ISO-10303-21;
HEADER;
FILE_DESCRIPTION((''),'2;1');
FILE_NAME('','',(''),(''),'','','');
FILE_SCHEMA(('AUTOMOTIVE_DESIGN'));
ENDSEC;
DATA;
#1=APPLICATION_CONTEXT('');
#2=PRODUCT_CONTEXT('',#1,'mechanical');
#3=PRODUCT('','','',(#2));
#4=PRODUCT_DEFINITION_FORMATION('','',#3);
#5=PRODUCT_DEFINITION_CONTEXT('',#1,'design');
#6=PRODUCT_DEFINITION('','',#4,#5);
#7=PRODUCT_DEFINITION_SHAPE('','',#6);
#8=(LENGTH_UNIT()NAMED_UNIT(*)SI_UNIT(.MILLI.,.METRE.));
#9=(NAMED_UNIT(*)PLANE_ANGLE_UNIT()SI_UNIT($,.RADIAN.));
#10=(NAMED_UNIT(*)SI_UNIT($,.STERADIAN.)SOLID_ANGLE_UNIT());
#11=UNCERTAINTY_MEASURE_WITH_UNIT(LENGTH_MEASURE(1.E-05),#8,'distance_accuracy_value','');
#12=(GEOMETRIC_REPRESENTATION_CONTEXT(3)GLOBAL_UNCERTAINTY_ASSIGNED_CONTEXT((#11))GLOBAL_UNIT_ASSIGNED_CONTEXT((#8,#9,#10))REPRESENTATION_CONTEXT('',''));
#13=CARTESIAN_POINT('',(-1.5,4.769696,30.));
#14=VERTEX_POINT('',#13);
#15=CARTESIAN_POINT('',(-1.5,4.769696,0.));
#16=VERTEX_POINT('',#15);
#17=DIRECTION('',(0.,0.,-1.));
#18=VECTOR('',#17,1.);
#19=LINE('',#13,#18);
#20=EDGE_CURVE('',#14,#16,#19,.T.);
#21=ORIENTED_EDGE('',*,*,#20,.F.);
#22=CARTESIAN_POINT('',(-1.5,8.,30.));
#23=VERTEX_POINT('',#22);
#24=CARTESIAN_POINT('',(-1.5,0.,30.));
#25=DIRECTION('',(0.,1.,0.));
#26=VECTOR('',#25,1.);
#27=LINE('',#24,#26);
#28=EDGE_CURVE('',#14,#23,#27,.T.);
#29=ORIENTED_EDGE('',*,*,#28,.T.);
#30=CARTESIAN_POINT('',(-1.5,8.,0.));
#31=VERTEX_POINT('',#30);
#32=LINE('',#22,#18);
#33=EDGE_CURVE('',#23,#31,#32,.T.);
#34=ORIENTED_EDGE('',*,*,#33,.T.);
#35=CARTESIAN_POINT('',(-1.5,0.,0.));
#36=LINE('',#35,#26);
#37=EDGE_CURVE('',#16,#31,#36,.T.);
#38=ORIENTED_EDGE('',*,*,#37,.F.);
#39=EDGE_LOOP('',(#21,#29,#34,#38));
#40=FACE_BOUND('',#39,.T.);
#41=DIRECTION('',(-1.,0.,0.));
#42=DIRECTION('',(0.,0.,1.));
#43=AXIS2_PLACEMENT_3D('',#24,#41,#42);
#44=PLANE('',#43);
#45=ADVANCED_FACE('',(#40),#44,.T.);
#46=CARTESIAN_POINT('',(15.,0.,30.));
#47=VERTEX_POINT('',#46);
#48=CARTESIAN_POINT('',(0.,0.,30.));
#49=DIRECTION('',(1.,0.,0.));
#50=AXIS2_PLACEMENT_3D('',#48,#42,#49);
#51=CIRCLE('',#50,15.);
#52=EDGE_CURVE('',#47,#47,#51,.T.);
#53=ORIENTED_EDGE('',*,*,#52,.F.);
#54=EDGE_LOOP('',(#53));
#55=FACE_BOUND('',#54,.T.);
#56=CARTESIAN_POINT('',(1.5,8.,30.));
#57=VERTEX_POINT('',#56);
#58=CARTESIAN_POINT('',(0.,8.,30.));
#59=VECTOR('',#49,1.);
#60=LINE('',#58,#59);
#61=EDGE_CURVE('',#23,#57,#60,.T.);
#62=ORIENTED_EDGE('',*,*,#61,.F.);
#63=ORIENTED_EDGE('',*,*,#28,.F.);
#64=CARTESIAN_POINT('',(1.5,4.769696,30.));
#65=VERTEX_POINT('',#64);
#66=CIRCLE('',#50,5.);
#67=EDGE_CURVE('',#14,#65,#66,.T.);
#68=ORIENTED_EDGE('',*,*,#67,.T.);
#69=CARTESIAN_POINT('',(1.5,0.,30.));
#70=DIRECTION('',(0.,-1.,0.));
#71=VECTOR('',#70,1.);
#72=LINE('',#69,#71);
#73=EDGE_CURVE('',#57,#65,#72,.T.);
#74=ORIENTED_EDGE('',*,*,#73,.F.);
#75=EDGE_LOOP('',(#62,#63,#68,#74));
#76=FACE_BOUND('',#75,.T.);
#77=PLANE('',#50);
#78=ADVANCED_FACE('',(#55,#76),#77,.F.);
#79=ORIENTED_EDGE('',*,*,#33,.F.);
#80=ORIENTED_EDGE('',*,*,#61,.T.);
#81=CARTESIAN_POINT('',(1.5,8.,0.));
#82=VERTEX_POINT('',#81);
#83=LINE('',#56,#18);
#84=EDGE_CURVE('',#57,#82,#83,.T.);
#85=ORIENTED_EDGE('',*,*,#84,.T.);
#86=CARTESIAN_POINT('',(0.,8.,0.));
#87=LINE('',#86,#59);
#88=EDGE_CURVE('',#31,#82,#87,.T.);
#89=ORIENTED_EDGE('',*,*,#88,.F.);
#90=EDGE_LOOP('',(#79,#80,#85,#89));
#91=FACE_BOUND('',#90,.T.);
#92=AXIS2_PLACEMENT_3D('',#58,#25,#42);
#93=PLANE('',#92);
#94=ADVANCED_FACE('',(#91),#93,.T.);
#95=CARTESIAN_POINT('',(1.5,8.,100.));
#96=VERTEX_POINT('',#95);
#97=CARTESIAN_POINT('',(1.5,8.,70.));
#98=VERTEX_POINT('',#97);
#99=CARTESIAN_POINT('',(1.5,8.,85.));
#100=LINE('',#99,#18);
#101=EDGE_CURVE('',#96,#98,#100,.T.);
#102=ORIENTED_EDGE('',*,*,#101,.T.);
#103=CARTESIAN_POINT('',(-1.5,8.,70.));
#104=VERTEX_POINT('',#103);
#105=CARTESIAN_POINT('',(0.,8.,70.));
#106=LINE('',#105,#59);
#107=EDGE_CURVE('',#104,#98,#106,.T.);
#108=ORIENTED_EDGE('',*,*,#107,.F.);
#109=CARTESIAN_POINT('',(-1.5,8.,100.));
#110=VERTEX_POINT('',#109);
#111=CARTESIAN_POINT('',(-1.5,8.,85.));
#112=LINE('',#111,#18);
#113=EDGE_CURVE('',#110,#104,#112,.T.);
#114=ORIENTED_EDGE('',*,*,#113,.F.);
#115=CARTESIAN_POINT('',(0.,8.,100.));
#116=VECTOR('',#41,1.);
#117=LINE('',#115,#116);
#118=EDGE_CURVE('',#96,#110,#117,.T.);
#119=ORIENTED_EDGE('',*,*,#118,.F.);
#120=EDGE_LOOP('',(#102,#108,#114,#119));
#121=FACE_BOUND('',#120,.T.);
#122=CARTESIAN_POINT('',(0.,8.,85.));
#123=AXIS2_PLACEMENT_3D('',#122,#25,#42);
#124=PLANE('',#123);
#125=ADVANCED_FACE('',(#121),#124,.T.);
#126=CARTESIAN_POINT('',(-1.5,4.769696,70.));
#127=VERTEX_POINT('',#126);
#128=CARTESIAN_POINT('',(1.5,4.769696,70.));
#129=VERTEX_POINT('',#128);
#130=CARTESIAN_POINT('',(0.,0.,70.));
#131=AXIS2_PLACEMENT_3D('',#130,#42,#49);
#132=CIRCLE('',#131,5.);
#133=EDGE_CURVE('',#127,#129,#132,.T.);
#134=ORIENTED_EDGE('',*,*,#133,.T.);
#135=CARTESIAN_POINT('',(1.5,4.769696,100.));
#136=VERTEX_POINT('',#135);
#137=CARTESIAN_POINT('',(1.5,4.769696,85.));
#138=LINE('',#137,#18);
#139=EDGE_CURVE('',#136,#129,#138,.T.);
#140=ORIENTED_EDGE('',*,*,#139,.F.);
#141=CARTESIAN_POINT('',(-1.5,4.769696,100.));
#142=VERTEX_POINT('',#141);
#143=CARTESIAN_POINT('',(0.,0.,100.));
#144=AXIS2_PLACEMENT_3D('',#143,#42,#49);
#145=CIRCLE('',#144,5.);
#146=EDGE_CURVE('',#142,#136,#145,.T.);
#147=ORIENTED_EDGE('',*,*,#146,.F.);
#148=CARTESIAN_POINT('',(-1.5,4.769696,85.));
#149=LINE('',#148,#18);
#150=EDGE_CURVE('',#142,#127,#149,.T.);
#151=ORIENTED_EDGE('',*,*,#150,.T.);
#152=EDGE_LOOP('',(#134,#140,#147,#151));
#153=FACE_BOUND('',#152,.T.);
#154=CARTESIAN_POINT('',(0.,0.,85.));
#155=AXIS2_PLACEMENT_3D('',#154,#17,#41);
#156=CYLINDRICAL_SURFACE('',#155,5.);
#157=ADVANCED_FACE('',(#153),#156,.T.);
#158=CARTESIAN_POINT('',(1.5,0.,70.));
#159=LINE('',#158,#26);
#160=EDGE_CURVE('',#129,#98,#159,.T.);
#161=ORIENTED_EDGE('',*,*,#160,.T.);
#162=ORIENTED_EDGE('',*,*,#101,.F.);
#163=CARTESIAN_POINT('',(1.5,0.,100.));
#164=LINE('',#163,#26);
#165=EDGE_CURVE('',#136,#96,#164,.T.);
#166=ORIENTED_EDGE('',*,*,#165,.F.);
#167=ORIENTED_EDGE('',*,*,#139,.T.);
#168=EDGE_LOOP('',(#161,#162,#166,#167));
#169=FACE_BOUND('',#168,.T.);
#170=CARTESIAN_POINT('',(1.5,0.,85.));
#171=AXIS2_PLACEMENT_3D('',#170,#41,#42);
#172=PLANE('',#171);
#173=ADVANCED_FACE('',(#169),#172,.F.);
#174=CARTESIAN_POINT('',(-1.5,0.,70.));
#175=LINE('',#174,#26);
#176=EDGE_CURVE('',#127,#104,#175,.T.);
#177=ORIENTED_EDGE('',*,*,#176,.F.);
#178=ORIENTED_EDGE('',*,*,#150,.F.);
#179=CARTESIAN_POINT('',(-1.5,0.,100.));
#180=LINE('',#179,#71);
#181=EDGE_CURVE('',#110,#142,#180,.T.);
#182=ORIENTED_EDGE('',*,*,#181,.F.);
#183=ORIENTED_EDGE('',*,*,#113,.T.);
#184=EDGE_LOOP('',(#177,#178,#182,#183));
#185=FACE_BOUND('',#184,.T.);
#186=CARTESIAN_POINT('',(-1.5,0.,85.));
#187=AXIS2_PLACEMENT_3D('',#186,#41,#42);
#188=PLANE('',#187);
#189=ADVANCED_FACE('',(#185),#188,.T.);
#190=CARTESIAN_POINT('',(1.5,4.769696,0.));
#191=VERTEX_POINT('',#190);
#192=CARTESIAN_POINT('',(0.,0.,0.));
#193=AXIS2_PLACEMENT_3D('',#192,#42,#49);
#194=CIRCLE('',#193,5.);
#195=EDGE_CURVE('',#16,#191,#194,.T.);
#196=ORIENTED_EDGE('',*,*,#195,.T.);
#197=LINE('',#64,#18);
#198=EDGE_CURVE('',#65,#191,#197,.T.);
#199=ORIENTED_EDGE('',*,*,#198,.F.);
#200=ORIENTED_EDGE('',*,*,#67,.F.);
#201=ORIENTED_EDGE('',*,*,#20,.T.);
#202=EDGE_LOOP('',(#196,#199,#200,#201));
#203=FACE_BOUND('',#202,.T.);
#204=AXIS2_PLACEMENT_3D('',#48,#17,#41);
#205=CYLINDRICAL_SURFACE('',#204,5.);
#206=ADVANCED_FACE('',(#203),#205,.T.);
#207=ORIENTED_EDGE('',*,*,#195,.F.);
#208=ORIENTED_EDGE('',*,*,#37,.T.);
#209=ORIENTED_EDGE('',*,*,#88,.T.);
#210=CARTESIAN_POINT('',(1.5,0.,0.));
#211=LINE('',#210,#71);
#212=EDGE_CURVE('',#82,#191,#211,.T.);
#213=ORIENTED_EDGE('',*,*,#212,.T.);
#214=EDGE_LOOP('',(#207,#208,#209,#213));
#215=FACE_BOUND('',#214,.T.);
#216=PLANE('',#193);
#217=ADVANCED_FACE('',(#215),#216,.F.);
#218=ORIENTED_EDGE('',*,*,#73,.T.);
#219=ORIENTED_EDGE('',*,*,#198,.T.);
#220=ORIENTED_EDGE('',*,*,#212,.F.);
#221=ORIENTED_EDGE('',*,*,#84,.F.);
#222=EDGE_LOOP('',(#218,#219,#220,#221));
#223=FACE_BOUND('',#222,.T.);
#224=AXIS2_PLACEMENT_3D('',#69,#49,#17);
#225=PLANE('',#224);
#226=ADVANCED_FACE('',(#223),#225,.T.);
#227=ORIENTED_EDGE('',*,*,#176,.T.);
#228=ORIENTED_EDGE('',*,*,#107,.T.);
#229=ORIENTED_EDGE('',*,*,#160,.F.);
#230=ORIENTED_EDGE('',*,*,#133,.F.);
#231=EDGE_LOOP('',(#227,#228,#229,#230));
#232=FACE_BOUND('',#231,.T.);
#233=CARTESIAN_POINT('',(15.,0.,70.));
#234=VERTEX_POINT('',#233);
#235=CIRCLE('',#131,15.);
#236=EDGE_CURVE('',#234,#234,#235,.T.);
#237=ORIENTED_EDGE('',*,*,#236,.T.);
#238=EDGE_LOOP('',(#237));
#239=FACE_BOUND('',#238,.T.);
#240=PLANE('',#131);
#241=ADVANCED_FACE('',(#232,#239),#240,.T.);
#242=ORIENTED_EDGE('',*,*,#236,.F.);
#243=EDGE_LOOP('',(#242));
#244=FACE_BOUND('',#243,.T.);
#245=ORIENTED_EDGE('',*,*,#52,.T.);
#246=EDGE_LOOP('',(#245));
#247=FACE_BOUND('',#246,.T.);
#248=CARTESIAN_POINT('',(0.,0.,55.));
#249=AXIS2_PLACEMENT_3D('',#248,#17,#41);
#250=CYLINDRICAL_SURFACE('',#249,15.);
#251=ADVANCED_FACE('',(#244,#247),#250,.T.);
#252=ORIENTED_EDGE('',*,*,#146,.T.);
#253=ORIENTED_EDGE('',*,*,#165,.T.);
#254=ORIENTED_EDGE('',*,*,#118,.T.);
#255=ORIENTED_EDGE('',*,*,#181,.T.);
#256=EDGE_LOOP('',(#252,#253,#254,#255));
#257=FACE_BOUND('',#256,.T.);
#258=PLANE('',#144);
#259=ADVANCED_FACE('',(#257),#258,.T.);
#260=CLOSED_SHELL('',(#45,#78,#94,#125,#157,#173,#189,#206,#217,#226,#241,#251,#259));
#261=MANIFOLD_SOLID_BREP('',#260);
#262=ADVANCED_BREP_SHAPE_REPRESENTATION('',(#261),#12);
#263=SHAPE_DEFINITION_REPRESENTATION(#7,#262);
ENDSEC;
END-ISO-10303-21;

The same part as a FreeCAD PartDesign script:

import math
import FreeCAD as App
import Part
import Sketcher

V = App.Vector

doc = App.newDocument("Part")
body = doc.addObject("PartDesign::Body", "Body")

sketch1 = doc.addObject("Sketcher::SketchObject", "Sketch")
body.addObject(sketch1)
sketch1.AttachmentSupport = (doc.XY_Plane, [""])
sketch1.MapMode = "FlatFace"
sketch1.addGeometry(Part.LineSegment(V(1.5, 4.8, 0), V(1.5, 8, 0)), False)
sketch1.addGeometry(Part.LineSegment(V(1.5, 8, 0), V(-1.5, 8, 0)), False)
sketch1.addGeometry(Part.LineSegment(V(-1.5, 8, 0), V(-1.5, 4.8, 0)), False)
sketch1.addGeometry(Part.ArcOfCircle(Part.Circle(V(0, 0, 0), V(0, 0, 1), 5), math.radians(107), math.radians(360)), False)
sketch1.addGeometry(Part.ArcOfCircle(Part.Circle(V(0, 0, 0), V(0, 0, 1), 5), math.radians(0), math.radians(73)), False)
sketch1.addConstraint(Sketcher.Constraint("Coincident", 0, 2, 1, 1))
sketch1.addConstraint(Sketcher.Constraint("Coincident", 1, 2, 2, 1))
sketch1.addConstraint(Sketcher.Constraint("Coincident", 2, 2, 3, 1))
sketch1.addConstraint(Sketcher.Constraint("Tangent", 3, 2, 4, 1))
sketch1.addConstraint(Sketcher.Constraint("Coincident", 4, 2, 0, 1))
sketch1.addConstraint(Sketcher.Constraint("Vertical", 0))
sketch1.addConstraint(Sketcher.Constraint("Horizontal", 1))
sketch1.addConstraint(Sketcher.Constraint("Vertical", 2))
sketch1.addConstraint(Sketcher.Constraint("Coincident", 3, 3, -1, 1))
sketch1.addConstraint(Sketcher.Constraint("Equal", 3, 4))
sketch1.addConstraint(Sketcher.Constraint("PointOnObject", 3, 2, -1))
sketch1.addConstraint(Sketcher.Constraint("Horizontal", 2, 2, 4, 2))
sketch1.addConstraint(Sketcher.Constraint("Radius", 3, 5.0))
sketch1.addConstraint(Sketcher.Constraint("DistanceX", 1, 2, 1, 1, 3.0))
sketch1.addConstraint(Sketcher.Constraint("DistanceY", -1, 1, 0, 2, 8.0))
pad1 = doc.addObject("PartDesign::Pad", "Pad")
body.addObject(pad1)
pad1.Profile = sketch1
pad1.Length = 30

sketch2 = doc.addObject("Sketcher::SketchObject", "Sketch001")
body.addObject(sketch2)
sketch2.AttachmentSupport = (doc.XY_Plane, [""])
sketch2.MapMode = "FlatFace"
sketch2.AttachmentOffset = App.Placement(V(0, 0, 30), App.Rotation())
sketch2.addGeometry(Part.Circle(V(0, 0, 0), V(0, 0, 1), 15), False)
sketch2.addConstraint(Sketcher.Constraint("Coincident", 0, 3, -1, 1))
sketch2.addConstraint(Sketcher.Constraint("Diameter", 0, 30.0))
pad2 = doc.addObject("PartDesign::Pad", "Pad001")
body.addObject(pad2)
pad2.Profile = sketch2
pad2.Length = 25

sketch3 = doc.addObject("Sketcher::SketchObject", "Sketch002")
body.addObject(sketch3)
sketch3.AttachmentSupport = (doc.XY_Plane, [""])
sketch3.MapMode = "FlatFace"
sketch3.AttachmentOffset = App.Placement(V(0, 0, 55), App.Rotation())
sketch3.addGeometry(Part.ArcOfCircle(Part.Circle(V(0, 0, 0), V(0, 0, 1), 5), math.radians(107), math.radians(360)), False)
sketch3.addGeometry(Part.ArcOfCircle(Part.Circle(V(0, 0, 0), V(0, 0, 1), 5), math.radians(0), math.radians(73)), False)
sketch3.addGeometry(Part.LineSegment(V(1.5, 4.8, 0), V(1.5, 8, 0)), False)
sketch3.addGeometry(Part.LineSegment(V(1.5, 8, 0), V(-1.5, 8, 0)), False)
sketch3.addGeometry(Part.LineSegment(V(-1.5, 8, 0), V(-1.5, 4.8, 0)), False)
sketch3.addConstraint(Sketcher.Constraint("Tangent", 0, 2, 1, 1))
sketch3.addConstraint(Sketcher.Constraint("Coincident", 1, 2, 2, 1))
sketch3.addConstraint(Sketcher.Constraint("Coincident", 2, 2, 3, 1))
sketch3.addConstraint(Sketcher.Constraint("Coincident", 3, 2, 4, 1))
sketch3.addConstraint(Sketcher.Constraint("Coincident", 4, 2, 0, 1))
sketch3.addConstraint(Sketcher.Constraint("Vertical", 2))
sketch3.addConstraint(Sketcher.Constraint("Horizontal", 3))
sketch3.addConstraint(Sketcher.Constraint("Vertical", 4))
sketch3.addConstraint(Sketcher.Constraint("Coincident", 0, 3, -1, 1))
sketch3.addConstraint(Sketcher.Constraint("Equal", 0, 1))
sketch3.addConstraint(Sketcher.Constraint("PointOnObject", 0, 2, -1))
sketch3.addConstraint(Sketcher.Constraint("Horizontal", 1, 2, 4, 2))
sketch3.addConstraint(Sketcher.Constraint("Radius", 0, 5.0))
sketch3.addConstraint(Sketcher.Constraint("DistanceX", 3, 2, 3, 1, 3.0))
sketch3.addConstraint(Sketcher.Constraint("DistanceY", -1, 1, 2, 2, 8.0))
pad3 = doc.addObject("PartDesign::Pad", "Pad002")
body.addObject(pad3)
pad3.Profile = sketch3
pad3.Length = 30

sketch4 = doc.addObject("Sketcher::SketchObject", "Sketch003")
body.addObject(sketch4)
sketch4.AttachmentSupport = (doc.XY_Plane, [""])
sketch4.MapMode = "FlatFace"
sketch4.AttachmentOffset = App.Placement(V(0, 0, 55), App.Rotation())
sketch4.addGeometry(Part.Circle(V(0, 0, 0), V(0, 0, 1), 15), False)
sketch4.addConstraint(Sketcher.Constraint("Coincident", 0, 3, -1, 1))
sketch4.addConstraint(Sketcher.Constraint("Diameter", 0, 30.0))
pad4 = doc.addObject("PartDesign::Pad", "Pad003")
body.addObject(pad4)
pad4.Profile = sketch4
pad4.Length = 15

sketch5 = doc.addObject("Sketcher::SketchObject", "Sketch004")
body.addObject(sketch5)
sketch5.AttachmentSupport = (doc.XY_Plane, [""])
sketch5.MapMode = "FlatFace"
sketch5.AttachmentOffset = App.Placement(V(0, 0, 85), App.Rotation())
sketch5.addGeometry(Part.ArcOfCircle(Part.Circle(V(0, 0, 0), V(0, 0, 1), 5), math.radians(107), math.radians(360)), False)
sketch5.addGeometry(Part.ArcOfCircle(Part.Circle(V(0, 0, 0), V(0, 0, 1), 5), math.radians(0), math.radians(73)), False)
sketch5.addGeometry(Part.LineSegment(V(1.5, 4.8, 0), V(1.5, 8, 0)), False)
sketch5.addGeometry(Part.LineSegment(V(1.5, 8, 0), V(-1.5, 8, 0)), False)
sketch5.addGeometry(Part.LineSegment(V(-1.5, 8, 0), V(-1.5, 4.8, 0)), False)
sketch5.addConstraint(Sketcher.Constraint("Tangent", 0, 2, 1, 1))
sketch5.addConstraint(Sketcher.Constraint("Coincident", 1, 2, 2, 1))
sketch5.addConstraint(Sketcher.Constraint("Coincident", 2, 2, 3, 1))
sketch5.addConstraint(Sketcher.Constraint("Coincident", 3, 2, 4, 1))
sketch5.addConstraint(Sketcher.Constraint("Coincident", 4, 2, 0, 1))
sketch5.addConstraint(Sketcher.Constraint("Vertical", 2))
sketch5.addConstraint(Sketcher.Constraint("Horizontal", 3))
sketch5.addConstraint(Sketcher.Constraint("Vertical", 4))
sketch5.addConstraint(Sketcher.Constraint("Coincident", 0, 3, -1, 1))
sketch5.addConstraint(Sketcher.Constraint("Equal", 0, 1))
sketch5.addConstraint(Sketcher.Constraint("PointOnObject", 0, 2, -1))
sketch5.addConstraint(Sketcher.Constraint("Horizontal", 1, 2, 4, 2))
sketch5.addConstraint(Sketcher.Constraint("Radius", 0, 5.0))
sketch5.addConstraint(Sketcher.Constraint("DistanceX", 3, 2, 3, 1, 3.0))
sketch5.addConstraint(Sketcher.Constraint("DistanceY", -1, 1, 2, 2, 8.0))
pad5 = doc.addObject("PartDesign::Pad", "Pad004")
body.addObject(pad5)
pad5.Profile = sketch5
pad5.Length = 15

doc.recompute()
